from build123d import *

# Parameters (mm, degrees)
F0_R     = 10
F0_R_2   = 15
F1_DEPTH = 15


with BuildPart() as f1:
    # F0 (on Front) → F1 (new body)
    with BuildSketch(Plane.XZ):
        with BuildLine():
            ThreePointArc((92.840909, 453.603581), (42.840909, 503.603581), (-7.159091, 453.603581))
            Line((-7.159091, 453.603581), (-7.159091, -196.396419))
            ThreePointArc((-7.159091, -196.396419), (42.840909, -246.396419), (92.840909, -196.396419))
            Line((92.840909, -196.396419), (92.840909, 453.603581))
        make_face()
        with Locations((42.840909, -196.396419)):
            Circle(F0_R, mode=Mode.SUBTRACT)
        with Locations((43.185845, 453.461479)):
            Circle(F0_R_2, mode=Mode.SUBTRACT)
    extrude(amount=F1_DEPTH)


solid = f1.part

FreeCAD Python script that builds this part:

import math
import FreeCAD as App
import Part
import Sketcher
from FreeCAD import Vector
Q = App.Units.Quantity

doc = App.newDocument("Part")
body = doc.addObject("PartDesign::Body", "Body")

sketch1 = doc.addObject("Sketcher::SketchObject", "Sketch")
body.addObject(sketch1)
sketch1.AttachmentSupport = (doc.XZ_Plane, [""])
sketch1.MapMode = "FlatFace"
sketch1.addGeometry(Part.ArcOfCircle(Part.Circle(Vector(42.840909, 453.603581, 0), Vector(0, 0, 1), 50), math.radians(0), math.radians(180)), False)
sketch1.addGeometry(Part.LineSegment(Vector(-7.159091, 453.603581, 0), Vector(-7.159091, -196.396419, 0)), False)
sketch1.addGeometry(Part.ArcOfCircle(Part.Circle(Vector(42.840909, -196.396419, 0), Vector(0, 0, 1), 50), math.radians(180), math.radians(360)), False)
sketch1.addGeometry(Part.LineSegment(Vector(92.840909, -196.396419, 0), Vector(92.840909, 453.603581, 0)), False)
sketch1.addGeometry(Part.Circle(Vector(42.840909, -196.396419, 0), Vector(0, 0, 1), 10), False)
sketch1.addGeometry(Part.Circle(Vector(43.185845, 453.461479, 0), Vector(0, 0, 1), 15), False)
sketch1.addConstraint(Sketcher.Constraint("Tangent", 0, 2, 1, 1))
sketch1.addConstraint(Sketcher.Constraint("Tangent", 1, 2, 2, 1))
sketch1.addConstraint(Sketcher.Constraint("Tangent", 2, 2, 3, 1))
sketch1.addConstraint(Sketcher.Constraint("Tangent", 3, 2, 0, 1))
sketch1.addConstraint(Sketcher.Constraint("Vertical", 1))
sketch1.addConstraint(Sketcher.Constraint("Vertical", 3))
sketch1.addConstraint(Sketcher.Constraint("Coincident", 4, 3, 2, 3))
sketch1.addConstraint(Sketcher.Constraint("Diameter", 4, Q("20 mm")))
sketch1.addConstraint(Sketcher.Constraint("Diameter", 5, Q("30 mm")))
sketch1.addConstraint(Sketcher.Constraint("Radius", 0, Q("50 mm")))
sketch1.addConstraint(Sketcher.Constraint("DistanceY", 1, 2, 1, 1, Q("650 mm")))
sketch1.addConstraint(Sketcher.Constraint("DistanceY", 2, 3, 5, 3, Q("649.857898 mm")))
sketch1.addConstraint(Sketcher.Constraint("DistanceX", -1, 1, 0, 3, Q("42.840909 mm")))
sketch1.addConstraint(Sketcher.Constraint("DistanceY", -1, 1, 0, 3, Q("453.603581 mm")))
sketch1.addConstraint(Sketcher.Constraint("DistanceX", -1, 1, 5, 3, Q("43.185845 mm")))
pad1 = doc.addObject("PartDesign::Pad", "Pad")
body.addObject(pad1)
pad1.Profile = sketch1
pad1.Length = 15

doc.recompute()
